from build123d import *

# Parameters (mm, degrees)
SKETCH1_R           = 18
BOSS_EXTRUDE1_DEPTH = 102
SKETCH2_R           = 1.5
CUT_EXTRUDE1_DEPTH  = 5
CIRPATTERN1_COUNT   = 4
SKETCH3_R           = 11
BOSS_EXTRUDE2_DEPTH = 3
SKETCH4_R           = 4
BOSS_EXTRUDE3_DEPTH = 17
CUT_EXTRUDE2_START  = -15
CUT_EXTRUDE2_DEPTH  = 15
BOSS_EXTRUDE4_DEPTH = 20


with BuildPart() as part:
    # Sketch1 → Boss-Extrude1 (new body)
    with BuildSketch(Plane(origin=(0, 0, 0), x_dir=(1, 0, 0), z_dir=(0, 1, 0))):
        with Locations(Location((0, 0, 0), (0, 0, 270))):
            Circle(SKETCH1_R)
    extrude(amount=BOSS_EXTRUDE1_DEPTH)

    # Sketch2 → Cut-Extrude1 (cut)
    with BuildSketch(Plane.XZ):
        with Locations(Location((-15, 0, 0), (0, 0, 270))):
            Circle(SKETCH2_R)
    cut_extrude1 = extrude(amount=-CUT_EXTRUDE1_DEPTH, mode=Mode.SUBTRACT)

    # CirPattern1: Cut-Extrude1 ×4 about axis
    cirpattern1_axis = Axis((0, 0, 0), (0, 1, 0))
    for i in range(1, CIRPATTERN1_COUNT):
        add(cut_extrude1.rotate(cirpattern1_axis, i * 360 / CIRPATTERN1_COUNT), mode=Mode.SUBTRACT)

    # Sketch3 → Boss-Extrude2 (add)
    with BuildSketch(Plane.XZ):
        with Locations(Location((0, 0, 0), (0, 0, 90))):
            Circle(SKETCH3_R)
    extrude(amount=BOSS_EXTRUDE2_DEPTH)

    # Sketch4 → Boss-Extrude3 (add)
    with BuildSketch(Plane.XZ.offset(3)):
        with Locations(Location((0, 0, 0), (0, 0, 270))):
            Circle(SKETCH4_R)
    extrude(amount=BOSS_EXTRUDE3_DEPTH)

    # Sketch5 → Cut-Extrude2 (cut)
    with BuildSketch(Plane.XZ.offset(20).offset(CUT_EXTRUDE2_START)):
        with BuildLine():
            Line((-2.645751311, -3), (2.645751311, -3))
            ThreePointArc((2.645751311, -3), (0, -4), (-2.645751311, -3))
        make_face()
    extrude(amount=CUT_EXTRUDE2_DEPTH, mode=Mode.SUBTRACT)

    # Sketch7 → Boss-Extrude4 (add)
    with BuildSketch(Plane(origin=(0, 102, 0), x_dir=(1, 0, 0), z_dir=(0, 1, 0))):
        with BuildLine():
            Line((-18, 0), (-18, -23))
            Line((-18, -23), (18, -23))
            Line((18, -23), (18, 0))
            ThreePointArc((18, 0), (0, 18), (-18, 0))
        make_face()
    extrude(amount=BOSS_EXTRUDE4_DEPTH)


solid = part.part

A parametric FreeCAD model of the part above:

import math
import FreeCAD as App
import Part
import Sketcher
Q = App.Units.Quantity

doc = App.newDocument("Part")
params = doc.addObject("Spreadsheet::Sheet", "Params")
for row, (alias, value) in enumerate([
    ("sketch1_diameter", "36 mm"),
    ("pad1_length", "102 mm"),
    ("sketch2_diameter", "3 mm"),
    ("pocket1_length", "5 mm"),
    ("sketch3_diameter", "22 mm"),
    ("pad2_length", "3 mm"),
    ("sketch4_diameter", "8 mm"),
    ("pad3_length", "17 mm"),
    ("sketch5_radius", "4 mm"),
    ("pocket2_length", "15 mm"),
    ("sketch6_radius", "18 mm"),
    ("sketch6_height", "23 mm"),
    ("pad4_length", "20 mm"),
], start=1):
    params.set(f"A{row}", alias)
    params.set(f"B{row}", "=" + value)
    params.setAlias(f"B{row}", alias)

body = doc.addObject("PartDesign::Body", "Body")

# Sketch on XZ plane
sketch1 = body.newObject("Sketcher::SketchObject", "Sketch")
sketch1.AttachmentSupport = (doc.getObject("XZ_Plane"), [""])
sketch1.MapMode = "FlatFace"
sketch1.addGeometry(Part.Circle(App.Vector(0, 0, 0), App.Vector(0, 0, 1), 18), False)
sketch1.addConstraint(Sketcher.Constraint("Coincident", 0, 3, -1, 1))
sketch1.addConstraint(Sketcher.Constraint("Diameter", 0, Q("36 mm")))
sketch1.setExpression("Constraints[1]", "Params.sketch1_diameter")
pad1 = body.newObject("PartDesign::Pad", "Pad")
pad1.Profile = sketch1
pad1.setExpression("Length", "Params.pad1_length")
pad1.Reversed = True

# Sketch on XZ plane
sketch2 = body.newObject("Sketcher::SketchObject", "Sketch001")
sketch2.AttachmentSupport = (doc.getObject("XZ_Plane"), [""])
sketch2.MapMode = "FlatFace"
sketch2.addGeometry(Part.Circle(App.Vector(-15, 0, 0), App.Vector(0, 0, 1), 1.5), False)
sketch2.addConstraint(Sketcher.Constraint("PointOnObject", 0, 3, -1))
sketch2.addConstraint(Sketcher.Constraint("Diameter", 0, Q("3 mm")))
sketch2.addConstraint(Sketcher.Constraint("DistanceX", 0, 3, -1, 1, Q("15 mm")))
sketch2.setExpression("Constraints[1]", "Params.sketch2_diameter")
pocket1 = body.newObject("PartDesign::Pocket", "Pocket")
pocket1.Profile = sketch2
pocket1.setExpression("Length", "Params.pocket1_length")
doc.recompute()

polarpattern = body.newObject("PartDesign::PolarPattern", "PolarPattern")
polarpattern.Originals = [pocket1]
polarpattern.Axis = (doc.getObject("Y_Axis"), [""])
polarpattern.Angle = 360
polarpattern.Occurrences = 4
body.Tip = polarpattern

# Sketch on XZ plane
sketch3 = body.newObject("Sketcher::SketchObject", "Sketch002")
sketch3.AttachmentSupport = (doc.getObject("XZ_Plane"), [""])
sketch3.MapMode = "FlatFace"
sketch3.addGeometry(Part.Circle(App.Vector(0, 0, 0), App.Vector(0, 0, 1), 11), False)
sketch3.addConstraint(Sketcher.Constraint("Coincident", 0, 3, -1, 1))
sketch3.addConstraint(Sketcher.Constraint("Diameter", 0, Q("22 mm")))
sketch3.setExpression("Constraints[1]", "Params.sketch3_diameter")
pad2 = body.newObject("PartDesign::Pad", "Pad001")
pad2.Profile = sketch3
pad2.setExpression("Length", "Params.pad2_length")

# Sketch on XZ plane
sketch4 = body.newObject("Sketcher::SketchObject", "Sketch003")
sketch4.AttachmentSupport = (doc.getObject("XZ_Plane"), [""])
sketch4.MapMode = "FlatFace"
sketch4.AttachmentOffset = App.Placement(App.Vector(0, 0, 3), App.Rotation())
sketch4.addGeometry(Part.Circle(App.Vector(0, 0, 0), App.Vector(0, 0, 1), 4), False)
sketch4.addConstraint(Sketcher.Constraint("Coincident", 0, 3, -1, 1))
sketch4.addConstraint(Sketcher.Constraint("Diameter", 0, Q("8 mm")))
sketch4.setExpression("Constraints[1]", "Params.sketch4_diameter")
pad3 = body.newObject("PartDesign::Pad", "Pad002")
pad3.Profile = sketch4
pad3.setExpression("Length", "Params.pad3_length")

# Sketch on XZ plane
sketch5 = body.newObject("Sketcher::SketchObject", "Sketch004")
sketch5.AttachmentSupport = (doc.getObject("XZ_Plane"), [""])
sketch5.MapMode = "FlatFace"
sketch5.AttachmentOffset = App.Placement(App.Vector(0, 0, 5), App.Rotation())
sketch5.addGeometry(Part.LineSegment(App.Vector(2.645751, -3, 0), App.Vector(-2.645751, -3, 0)), False)
sketch5.addGeometry(Part.ArcOfCircle(Part.Circle(App.Vector(0, 0, 0), App.Vector(0, 0, 1), 4), math.radians(-131.409622), math.radians(-48.590378)), False)
sketch5.addConstraint(Sketcher.Constraint("Coincident", 0, 1, 1, 2))
sketch5.addConstraint(Sketcher.Constraint("Coincident", 1, 1, 0, 2))
sketch5.addConstraint(Sketcher.Constraint("Horizontal", 0))
sketch5.addConstraint(Sketcher.Constraint("Coincident", 1, 3, -1, 1))
sketch5.addConstraint(Sketcher.Constraint("Radius", 1, Q("4 mm")))
sketch5.addConstraint(Sketcher.Constraint("DistanceY", 0, 1, -1, 1, Q("3 mm")))
sketch5.setExpression("Constraints[4]", "Params.sketch5_radius")
pocket2 = body.newObject("PartDesign::Pocket", "Pocket001")
pocket2.Profile = sketch5
pocket2.setExpression("Length", "Params.pocket2_length")
pocket2.Reversed = True

# Sketch on XZ plane
sketch6 = body.newObject("Sketcher::SketchObject", "Sketch005")
sketch6.AttachmentSupport = (doc.getObject("XZ_Plane"), [""])
sketch6.MapMode = "FlatFace"
sketch6.AttachmentOffset = App.Placement(App.Vector(0, 0, -102), App.Rotation())
sketch6.addGeometry(Part.LineSegment(App.Vector(-18, 0, 0), App.Vector(-18, 23, 0)), False)
sketch6.addGeometry(Part.LineSegment(App.Vector(-18, 23, 0), App.Vector(18, 23, 0)), False)
sketch6.addGeometry(Part.LineSegment(App.Vector(18, 23, 0), App.Vector(18, 0, 0)), False)
sketch6.addGeometry(Part.ArcOfCircle(Part.Circle(App.Vector(0, 0, 0), App.Vector(0, 0, 1), 18), math.radians(180), math.radians(360)), False)
sketch6.addConstraint(Sketcher.Constraint("Coincident", 0, 2, 1, 1))
sketch6.addConstraint(Sketcher.Constraint("Coincident", 1, 2, 2, 1))
sketch6.addConstraint(Sketcher.Constraint("Tangent", 2, 2, 3, 2))
sketch6.addConstraint(Sketcher.Constraint("Tangent", 3, 1, 0, 1))
sketch6.addConstraint(Sketcher.Constraint("Vertical", 0))
sketch6.addConstraint(Sketcher.Constraint("Horizontal", 1))
sketch6.addConstraint(Sketcher.Constraint("Vertical", 2))
sketch6.addConstraint(Sketcher.Constraint("Coincident", 3, 3, -1, 1))
sketch6.addConstraint(Sketcher.Constraint("Radius", 3, Q("18 mm")))
sketch6.addConstraint(Sketcher.Constraint("DistanceY", 0, 1, 0, 2, Q("23 mm")))
sketch6.setExpression("Constraints[8]", "Params.sketch6_radius")
sketch6.setExpression("Constraints[9]", "Params.sketch6_height")
pad4 = body.newObject("PartDesign::Pad", "Pad003")
pad4.Profile = sketch6
pad4.setExpression("Length", "Params.pad4_length")
pad4.Reversed = True

doc.recompute()
